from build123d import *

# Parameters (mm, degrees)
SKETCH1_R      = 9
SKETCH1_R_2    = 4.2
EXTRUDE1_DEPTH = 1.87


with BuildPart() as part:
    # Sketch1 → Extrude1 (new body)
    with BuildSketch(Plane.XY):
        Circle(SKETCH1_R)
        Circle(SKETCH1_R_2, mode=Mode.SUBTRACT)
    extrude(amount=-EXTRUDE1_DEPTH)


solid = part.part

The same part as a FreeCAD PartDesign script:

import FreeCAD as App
import Part
import Sketcher
Q = App.Units.Quantity

doc = App.newDocument("Part")
body = doc.addObject("PartDesign::Body", "Body")

# Sketch on XY plane
sketch1 = body.newObject("Sketcher::SketchObject", "Sketch")
sketch1.AttachmentSupport = (doc.getObject("XY_Plane"), [""])
sketch1.MapMode = "FlatFace"
sketch1.addGeometry([
    Part.Circle(App.Vector(0, 0, 0), App.Vector(0, 0, 1), 9),
    Part.Circle(App.Vector(0, 0, 0), App.Vector(0, 0, 1), 4.2),
], False)
sketch1.addConstraint([
    Sketcher.Constraint("Coincident", 0, 3, -1, 1),
    Sketcher.Constraint("Coincident", 1, 3, -1, 1),
    Sketcher.Constraint("Diameter", 0, Q("18 mm")),
    Sketcher.Constraint("Diameter", 1, Q("8.4 mm")),
])
pad1 = body.newObject("PartDesign::Pad", "Pad")
pad1.Profile = sketch1
pad1.Length = 1.87
pad1.Reversed = True

doc.recompute()
